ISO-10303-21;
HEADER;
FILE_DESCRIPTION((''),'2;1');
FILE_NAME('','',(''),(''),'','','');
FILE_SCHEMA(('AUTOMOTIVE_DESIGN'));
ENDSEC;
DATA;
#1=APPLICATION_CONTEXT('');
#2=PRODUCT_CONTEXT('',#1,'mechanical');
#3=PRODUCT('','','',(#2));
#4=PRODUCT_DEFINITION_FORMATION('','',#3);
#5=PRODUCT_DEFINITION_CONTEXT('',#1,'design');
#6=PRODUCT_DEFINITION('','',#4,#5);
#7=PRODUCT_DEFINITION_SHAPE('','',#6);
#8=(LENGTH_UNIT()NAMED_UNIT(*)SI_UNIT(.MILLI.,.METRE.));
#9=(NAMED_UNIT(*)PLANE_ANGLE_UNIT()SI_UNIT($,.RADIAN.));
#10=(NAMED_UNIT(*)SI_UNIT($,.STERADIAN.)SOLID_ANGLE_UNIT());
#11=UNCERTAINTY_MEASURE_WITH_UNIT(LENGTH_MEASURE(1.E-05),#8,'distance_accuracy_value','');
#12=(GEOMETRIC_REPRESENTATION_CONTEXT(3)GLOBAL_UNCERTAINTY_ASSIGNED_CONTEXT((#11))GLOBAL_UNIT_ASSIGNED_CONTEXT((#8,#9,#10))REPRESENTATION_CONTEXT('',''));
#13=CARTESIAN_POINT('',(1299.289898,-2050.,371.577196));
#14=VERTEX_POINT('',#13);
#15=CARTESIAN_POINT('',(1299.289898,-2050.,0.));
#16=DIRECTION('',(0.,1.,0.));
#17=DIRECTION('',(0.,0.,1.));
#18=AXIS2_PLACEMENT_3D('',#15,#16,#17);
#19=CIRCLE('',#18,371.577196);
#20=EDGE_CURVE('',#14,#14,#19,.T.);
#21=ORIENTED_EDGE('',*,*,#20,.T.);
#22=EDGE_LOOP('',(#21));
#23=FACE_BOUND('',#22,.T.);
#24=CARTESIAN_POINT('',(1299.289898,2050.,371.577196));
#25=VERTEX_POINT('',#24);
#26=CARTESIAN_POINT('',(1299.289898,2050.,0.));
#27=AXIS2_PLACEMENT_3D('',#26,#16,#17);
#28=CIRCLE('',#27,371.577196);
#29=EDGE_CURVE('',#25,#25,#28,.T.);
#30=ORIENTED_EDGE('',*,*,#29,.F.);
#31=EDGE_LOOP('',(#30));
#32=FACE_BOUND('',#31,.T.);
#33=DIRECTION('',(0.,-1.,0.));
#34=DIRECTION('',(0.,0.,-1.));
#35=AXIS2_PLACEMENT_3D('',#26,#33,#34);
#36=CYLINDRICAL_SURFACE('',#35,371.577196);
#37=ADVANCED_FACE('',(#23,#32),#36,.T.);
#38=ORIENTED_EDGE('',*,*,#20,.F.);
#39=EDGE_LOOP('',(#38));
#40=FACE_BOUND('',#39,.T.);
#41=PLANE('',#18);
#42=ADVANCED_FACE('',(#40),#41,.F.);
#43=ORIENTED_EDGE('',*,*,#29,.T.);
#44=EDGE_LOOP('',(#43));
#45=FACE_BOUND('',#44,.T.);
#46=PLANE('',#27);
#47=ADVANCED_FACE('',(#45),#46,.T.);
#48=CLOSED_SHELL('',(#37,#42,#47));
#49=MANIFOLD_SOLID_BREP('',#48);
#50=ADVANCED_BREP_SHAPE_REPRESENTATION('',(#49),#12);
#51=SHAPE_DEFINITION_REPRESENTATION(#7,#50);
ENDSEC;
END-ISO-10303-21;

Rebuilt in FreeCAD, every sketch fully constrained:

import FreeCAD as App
import Part
import Sketcher
from FreeCAD import Vector
Q = App.Units.Quantity

doc = App.newDocument("Part")
body = doc.addObject("PartDesign::Body", "Body")

# Sketch on XZ plane
sketch1 = body.newObject("Sketcher::SketchObject", "Sketch")
sketch1.AttachmentSupport = (doc.getObject("XZ_Plane"), [""])
sketch1.MapMode = "FlatFace"
sketch1.AttachmentOffset = App.Placement(Vector(0, 0, 2050), App.Rotation())
sketch1.addGeometry(Part.Circle(Vector(1299.289898, 0, 0), Vector(0, 0, 1), 371.577196), False)
sketch1.addConstraint([
    Sketcher.Constraint("PointOnObject", 0, 3, -1),
    Sketcher.Constraint("Diameter", 0, Q("743.154393 mm")),
    Sketcher.Constraint("DistanceX", -1, 1, 0, 3, Q("1299.289898 mm")),
])
pad1 = body.newObject("PartDesign::Pad", "Pad")
pad1.Profile = sketch1
pad1.Length = 4100
pad1.Reversed = True

doc.recompute()
